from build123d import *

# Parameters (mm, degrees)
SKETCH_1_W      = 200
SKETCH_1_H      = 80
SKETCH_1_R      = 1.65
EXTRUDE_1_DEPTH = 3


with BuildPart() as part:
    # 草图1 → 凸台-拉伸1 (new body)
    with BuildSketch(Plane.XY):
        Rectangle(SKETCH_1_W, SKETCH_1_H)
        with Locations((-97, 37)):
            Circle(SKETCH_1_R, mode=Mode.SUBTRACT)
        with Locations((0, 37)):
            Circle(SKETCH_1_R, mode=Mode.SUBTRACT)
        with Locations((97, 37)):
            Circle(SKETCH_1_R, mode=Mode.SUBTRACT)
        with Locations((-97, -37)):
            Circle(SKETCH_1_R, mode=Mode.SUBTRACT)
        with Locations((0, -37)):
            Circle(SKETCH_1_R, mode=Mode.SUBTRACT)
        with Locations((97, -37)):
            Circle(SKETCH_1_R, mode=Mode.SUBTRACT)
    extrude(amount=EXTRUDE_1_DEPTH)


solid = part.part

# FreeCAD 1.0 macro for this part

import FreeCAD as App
import Part
import Sketcher
from FreeCAD import Vector
Q = App.Units.Quantity


def add_polygon(sketch, points):
    """Adds a closed chain of lines whose ends are joined by coincident constraints."""
    first, n = sketch.GeometryCount, len(points)
    for a, b in zip(points, points[1:] + points[:1]):
        sketch.addGeometry(Part.LineSegment(App.Vector(*a, 0), App.Vector(*b, 0)), False)
    for i in range(n):
        sketch.addConstraint(Sketcher.Constraint("Coincident", first + i, 2, first + (i + 1) % n, 1))

doc = App.newDocument("Part")
body = doc.addObject("PartDesign::Body", "Body")

# Sketch on XY plane
sketch1 = body.newObject("Sketcher::SketchObject", "Sketch")
sketch1.AttachmentSupport = (doc.getObject("XY_Plane"), [""])
sketch1.MapMode = "FlatFace"
add_polygon(sketch1, [(-100, 40), (-100, -40), (100, -40), (100, 40)])  # lines 0-3
sketch1.addGeometry(Part.Circle(Vector(-97, -37, 0), Vector(0, 0, 1), 1.65), False)  # 4
sketch1.addGeometry(Part.Circle(Vector(0, -37, 0), Vector(0, 0, 1), 1.65), False)  # 5
sketch1.addGeometry(Part.Circle(Vector(97, -37, 0), Vector(0, 0, 1), 1.65), False)  # 6
sketch1.addGeometry(Part.Circle(Vector(-97, 37, 0), Vector(0, 0, 1), 1.65), False)  # 7
sketch1.addGeometry(Part.Circle(Vector(0, 37, 0), Vector(0, 0, 1), 1.65), False)  # 8
sketch1.addGeometry(Part.Circle(Vector(97, 37, 0), Vector(0, 0, 1), 1.65), False)  # 9
sketch1.addConstraint([
    Sketcher.Constraint("Vertical", 0),
    Sketcher.Constraint("Horizontal", 1),
    Sketcher.Constraint("Vertical", 2),
    Sketcher.Constraint("Horizontal", 3),
    Sketcher.Constraint("Equal", 4, 5),
    Sketcher.Constraint("Equal", 5, 6),
    Sketcher.Constraint("Equal", 6, 7),
    Sketcher.Constraint("Equal", 7, 8),
    Sketcher.Constraint("Equal", 8, 9),
    Sketcher.Constraint("Symmetric", 6, 3, 7, 3, -1, 1),
    Sketcher.Constraint("Symmetric", 5, 3, 8, 3, -1, 1),
    Sketcher.Constraint("Symmetric", 4, 3, 9, 3, -1, 1),
    Sketcher.Constraint("Symmetric", 0, 2, 2, 2, -1, 1),
    Sketcher.Constraint("Symmetric", 4, 3, 6, 3, -2),
    Sketcher.Constraint("PointOnObject", 5, 3, -2),
    Sketcher.Constraint("Horizontal", 4, 3, 5, 3),
    Sketcher.Constraint("Diameter", 4, Q("3.3 mm")),
    Sketcher.Constraint("DistanceX", 1, 1, 1, 2, Q("200 mm")),
    Sketcher.Constraint("DistanceY", 0, 2, 0, 1, Q("80 mm")),
    Sketcher.Constraint("DistanceX", 4, 3, -1, 1, Q("97 mm")),
    Sketcher.Constraint("DistanceY", 4, 3, -1, 1, Q("37 mm")),
])
pad1 = body.newObject("PartDesign::Pad", "Pad")
pad1.Profile = sketch1
pad1.Length = 3

doc.recompute()
